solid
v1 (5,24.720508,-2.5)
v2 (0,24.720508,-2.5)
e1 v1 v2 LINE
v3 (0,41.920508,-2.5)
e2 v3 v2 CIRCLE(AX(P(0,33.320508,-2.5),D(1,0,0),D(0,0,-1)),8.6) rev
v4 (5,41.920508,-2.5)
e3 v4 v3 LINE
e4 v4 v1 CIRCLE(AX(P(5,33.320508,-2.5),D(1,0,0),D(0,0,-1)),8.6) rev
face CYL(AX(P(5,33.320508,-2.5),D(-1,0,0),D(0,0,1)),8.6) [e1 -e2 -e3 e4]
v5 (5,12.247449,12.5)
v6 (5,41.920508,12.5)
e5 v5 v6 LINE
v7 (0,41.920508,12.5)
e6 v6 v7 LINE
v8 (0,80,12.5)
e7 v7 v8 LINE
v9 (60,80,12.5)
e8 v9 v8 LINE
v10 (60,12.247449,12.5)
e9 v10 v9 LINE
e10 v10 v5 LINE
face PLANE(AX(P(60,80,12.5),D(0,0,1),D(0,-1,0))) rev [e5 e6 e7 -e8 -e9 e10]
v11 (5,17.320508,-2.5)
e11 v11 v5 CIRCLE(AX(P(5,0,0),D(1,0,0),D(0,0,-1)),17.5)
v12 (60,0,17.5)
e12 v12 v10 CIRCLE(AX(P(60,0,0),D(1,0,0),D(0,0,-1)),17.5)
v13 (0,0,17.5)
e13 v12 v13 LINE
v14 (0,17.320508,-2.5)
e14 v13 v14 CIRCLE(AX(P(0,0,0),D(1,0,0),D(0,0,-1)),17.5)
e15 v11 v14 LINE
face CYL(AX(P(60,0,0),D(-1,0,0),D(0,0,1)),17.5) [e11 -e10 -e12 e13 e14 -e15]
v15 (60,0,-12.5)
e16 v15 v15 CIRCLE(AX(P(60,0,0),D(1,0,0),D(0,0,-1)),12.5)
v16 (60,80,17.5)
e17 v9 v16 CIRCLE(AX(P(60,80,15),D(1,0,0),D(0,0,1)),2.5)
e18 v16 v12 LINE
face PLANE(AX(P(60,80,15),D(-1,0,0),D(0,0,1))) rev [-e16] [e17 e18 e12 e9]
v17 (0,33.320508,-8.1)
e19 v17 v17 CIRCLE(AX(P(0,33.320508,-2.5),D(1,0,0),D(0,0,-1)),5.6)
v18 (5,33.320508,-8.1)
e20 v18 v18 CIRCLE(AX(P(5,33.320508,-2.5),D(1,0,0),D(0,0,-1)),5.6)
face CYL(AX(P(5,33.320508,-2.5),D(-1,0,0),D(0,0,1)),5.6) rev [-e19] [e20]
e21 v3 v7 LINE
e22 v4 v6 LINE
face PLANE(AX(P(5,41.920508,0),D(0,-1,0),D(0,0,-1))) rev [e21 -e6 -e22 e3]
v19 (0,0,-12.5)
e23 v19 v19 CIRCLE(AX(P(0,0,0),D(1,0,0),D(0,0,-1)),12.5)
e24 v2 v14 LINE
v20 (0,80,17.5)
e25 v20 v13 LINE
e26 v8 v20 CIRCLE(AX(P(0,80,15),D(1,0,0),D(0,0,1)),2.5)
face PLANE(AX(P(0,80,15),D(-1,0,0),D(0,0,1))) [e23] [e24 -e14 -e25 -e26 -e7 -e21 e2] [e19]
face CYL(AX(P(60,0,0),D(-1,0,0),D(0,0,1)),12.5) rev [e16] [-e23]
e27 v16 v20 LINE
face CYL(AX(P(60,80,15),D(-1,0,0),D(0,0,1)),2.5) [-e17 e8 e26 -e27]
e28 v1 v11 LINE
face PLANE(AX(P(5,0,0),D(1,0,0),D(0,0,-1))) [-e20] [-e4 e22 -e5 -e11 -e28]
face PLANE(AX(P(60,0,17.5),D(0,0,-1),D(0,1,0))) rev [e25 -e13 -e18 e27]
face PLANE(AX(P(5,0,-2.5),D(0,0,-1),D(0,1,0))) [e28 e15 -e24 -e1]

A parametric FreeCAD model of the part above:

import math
import FreeCAD as App
import Part
import Sketcher

doc = App.newDocument("Part")
params = doc.addObject("Spreadsheet::Sheet", "Params")
for row, (alias, value) in enumerate([
    ("sketch1_diameter", "25 mm"),
    ("sketch1_radius", "17.5 mm"),
    ("sketch1_radius2", "2.5 mm"),
    ("sketch1_width", "80 mm"),
    ("pad1_length", "60 mm"),
    ("sketch2_diameter", "11.2 mm"),
    ("sketch2_radius", "8.6 mm"),
    ("sketch2_radius2", "17.5 mm"),
    ("sketch2_height", "15 mm"),
    ("sketch2_width", "7.4 mm"),
    ("pad2_length", "5 mm"),
], start=1):
    params.set(f"A{row}", alias)
    params.set(f"B{row}", "=" + value)
    params.setAlias(f"B{row}", alias)

body = doc.addObject("PartDesign::Body", "Body")

sketch1 = body.newObject("Sketcher::SketchObject", "Sketch")
sketch1.AttachmentSupport = (doc.getObject("YZ_Plane"), [""])
sketch1.MapMode = "FlatFace"
sketch1.addGeometry([
    Part.LineSegment(App.Vector(80, 17.5, 0), App.Vector(0, 17.5, 0)),
    Part.ArcOfCircle(Part.Circle(App.Vector(0, 0, 0), App.Vector(0, 0, 1), 17.5), math.radians(90), math.radians(406)),
    Part.LineSegment(App.Vector(12.2, 12.5, 0), App.Vector(80, 12.5, 0)),
    Part.ArcOfCircle(Part.Circle(App.Vector(80, 15, 0), App.Vector(0, 0, 1), 2.5), math.radians(-90), math.radians(90)),
    Part.Circle(App.Vector(0, 0, 0), App.Vector(0, 0, 1), 12.5),
], False)
sketch1.addConstraint([
    Sketcher.Constraint("Tangent", 0, 2, 1, 1),
    Sketcher.Constraint("Coincident", 1, 2, 2, 1),
    Sketcher.Constraint("Tangent", 2, 2, 3, 1),
    Sketcher.Constraint("Tangent", 3, 2, 0, 1),
    Sketcher.Constraint("Horizontal", 0),
    Sketcher.Constraint("Horizontal", 2),
    Sketcher.Constraint("Coincident", 1, 3, -1, 1),
    Sketcher.Constraint("Coincident", 4, 3, -1, 1),
    Sketcher.Constraint("Diameter", 4, 25.0),
    Sketcher.Constraint("Radius", 1, 17.5),
    Sketcher.Constraint("Radius", 3, 2.5),
    Sketcher.Constraint("DistanceX", 0, 2, 0, 1, 80.0),
])
sketch1.setExpression("Constraints[8]", "Params.sketch1_diameter")
sketch1.setExpression("Constraints[9]", "Params.sketch1_radius")
sketch1.setExpression("Constraints[10]", "Params.sketch1_radius2")
sketch1.setExpression("Constraints[11]", "Params.sketch1_width")
pad1 = body.newObject("PartDesign::Pad", "Pad")
pad1.Profile = sketch1
pad1.setExpression("Length", "Params.pad1_length")

sketch2 = body.newObject("Sketcher::SketchObject", "Sketch001")
sketch2.AttachmentSupport = (doc.getObject("YZ_Plane"), [""])
sketch2.MapMode = "FlatFace"
sketch2.addGeometry([
    Part.ArcOfCircle(Part.Circle(App.Vector(33, -2, 0), App.Vector(0, 0, 1), 9), math.radians(180), math.radians(360)),
    Part.LineSegment(App.Vector(42, -2, 0), App.Vector(42, 12, 0)),
    Part.LineSegment(App.Vector(42, 12, 0), App.Vector(12, 12, 0)),
    Part.ArcOfCircle(Part.Circle(App.Vector(0, 0, 0), App.Vector(0, 0, 1), 18), math.radians(-8), math.radians(46)),
    Part.LineSegment(App.Vector(17, -2, 0), App.Vector(25, -2, 0)),
    Part.Circle(App.Vector(33, -2, 0), App.Vector(0, 0, 1), 6),
], False)
sketch2.addConstraint([
    Sketcher.Constraint("Tangent", 0, 2, 1, 1),
    Sketcher.Constraint("Coincident", 1, 2, 2, 1),
    Sketcher.Constraint("Coincident", 2, 2, 3, 2),
    Sketcher.Constraint("Coincident", 3, 1, 4, 1),
    Sketcher.Constraint("Coincident", 4, 2, 0, 1),
    Sketcher.Constraint("Vertical", 1),
    Sketcher.Constraint("Horizontal", 2),
    Sketcher.Constraint("Horizontal", 4),
    Sketcher.Constraint("Coincident", 3, 3, -1, 1),
    Sketcher.Constraint("Coincident", 5, 3, 0, 3),
    Sketcher.Constraint("Horizontal", 0, 2, 3, 1),
    Sketcher.Constraint("Diameter", 5, 11.2),
    Sketcher.Constraint("Radius", 0, 8.6),
    Sketcher.Constraint("Radius", 3, 17.5),
    Sketcher.Constraint("DistanceY", 1, 1, 1, 2, 15.0),
    Sketcher.Constraint("DistanceX", 4, 1, 4, 2, 7.4),
    Sketcher.Constraint("DistanceY", 0, 3, -1, 1, 2.5),
])
sketch2.setExpression("Constraints[11]", "Params.sketch2_diameter")
sketch2.setExpression("Constraints[12]", "Params.sketch2_radius")
sketch2.setExpression("Constraints[13]", "Params.sketch2_radius2")
sketch2.setExpression("Constraints[14]", "Params.sketch2_height")
sketch2.setExpression("Constraints[15]", "Params.sketch2_width")
pad2 = body.newObject("PartDesign::Pad", "Pad001")
pad2.Profile = sketch2
pad2.setExpression("Length", "Params.pad2_length")

doc.recompute()
